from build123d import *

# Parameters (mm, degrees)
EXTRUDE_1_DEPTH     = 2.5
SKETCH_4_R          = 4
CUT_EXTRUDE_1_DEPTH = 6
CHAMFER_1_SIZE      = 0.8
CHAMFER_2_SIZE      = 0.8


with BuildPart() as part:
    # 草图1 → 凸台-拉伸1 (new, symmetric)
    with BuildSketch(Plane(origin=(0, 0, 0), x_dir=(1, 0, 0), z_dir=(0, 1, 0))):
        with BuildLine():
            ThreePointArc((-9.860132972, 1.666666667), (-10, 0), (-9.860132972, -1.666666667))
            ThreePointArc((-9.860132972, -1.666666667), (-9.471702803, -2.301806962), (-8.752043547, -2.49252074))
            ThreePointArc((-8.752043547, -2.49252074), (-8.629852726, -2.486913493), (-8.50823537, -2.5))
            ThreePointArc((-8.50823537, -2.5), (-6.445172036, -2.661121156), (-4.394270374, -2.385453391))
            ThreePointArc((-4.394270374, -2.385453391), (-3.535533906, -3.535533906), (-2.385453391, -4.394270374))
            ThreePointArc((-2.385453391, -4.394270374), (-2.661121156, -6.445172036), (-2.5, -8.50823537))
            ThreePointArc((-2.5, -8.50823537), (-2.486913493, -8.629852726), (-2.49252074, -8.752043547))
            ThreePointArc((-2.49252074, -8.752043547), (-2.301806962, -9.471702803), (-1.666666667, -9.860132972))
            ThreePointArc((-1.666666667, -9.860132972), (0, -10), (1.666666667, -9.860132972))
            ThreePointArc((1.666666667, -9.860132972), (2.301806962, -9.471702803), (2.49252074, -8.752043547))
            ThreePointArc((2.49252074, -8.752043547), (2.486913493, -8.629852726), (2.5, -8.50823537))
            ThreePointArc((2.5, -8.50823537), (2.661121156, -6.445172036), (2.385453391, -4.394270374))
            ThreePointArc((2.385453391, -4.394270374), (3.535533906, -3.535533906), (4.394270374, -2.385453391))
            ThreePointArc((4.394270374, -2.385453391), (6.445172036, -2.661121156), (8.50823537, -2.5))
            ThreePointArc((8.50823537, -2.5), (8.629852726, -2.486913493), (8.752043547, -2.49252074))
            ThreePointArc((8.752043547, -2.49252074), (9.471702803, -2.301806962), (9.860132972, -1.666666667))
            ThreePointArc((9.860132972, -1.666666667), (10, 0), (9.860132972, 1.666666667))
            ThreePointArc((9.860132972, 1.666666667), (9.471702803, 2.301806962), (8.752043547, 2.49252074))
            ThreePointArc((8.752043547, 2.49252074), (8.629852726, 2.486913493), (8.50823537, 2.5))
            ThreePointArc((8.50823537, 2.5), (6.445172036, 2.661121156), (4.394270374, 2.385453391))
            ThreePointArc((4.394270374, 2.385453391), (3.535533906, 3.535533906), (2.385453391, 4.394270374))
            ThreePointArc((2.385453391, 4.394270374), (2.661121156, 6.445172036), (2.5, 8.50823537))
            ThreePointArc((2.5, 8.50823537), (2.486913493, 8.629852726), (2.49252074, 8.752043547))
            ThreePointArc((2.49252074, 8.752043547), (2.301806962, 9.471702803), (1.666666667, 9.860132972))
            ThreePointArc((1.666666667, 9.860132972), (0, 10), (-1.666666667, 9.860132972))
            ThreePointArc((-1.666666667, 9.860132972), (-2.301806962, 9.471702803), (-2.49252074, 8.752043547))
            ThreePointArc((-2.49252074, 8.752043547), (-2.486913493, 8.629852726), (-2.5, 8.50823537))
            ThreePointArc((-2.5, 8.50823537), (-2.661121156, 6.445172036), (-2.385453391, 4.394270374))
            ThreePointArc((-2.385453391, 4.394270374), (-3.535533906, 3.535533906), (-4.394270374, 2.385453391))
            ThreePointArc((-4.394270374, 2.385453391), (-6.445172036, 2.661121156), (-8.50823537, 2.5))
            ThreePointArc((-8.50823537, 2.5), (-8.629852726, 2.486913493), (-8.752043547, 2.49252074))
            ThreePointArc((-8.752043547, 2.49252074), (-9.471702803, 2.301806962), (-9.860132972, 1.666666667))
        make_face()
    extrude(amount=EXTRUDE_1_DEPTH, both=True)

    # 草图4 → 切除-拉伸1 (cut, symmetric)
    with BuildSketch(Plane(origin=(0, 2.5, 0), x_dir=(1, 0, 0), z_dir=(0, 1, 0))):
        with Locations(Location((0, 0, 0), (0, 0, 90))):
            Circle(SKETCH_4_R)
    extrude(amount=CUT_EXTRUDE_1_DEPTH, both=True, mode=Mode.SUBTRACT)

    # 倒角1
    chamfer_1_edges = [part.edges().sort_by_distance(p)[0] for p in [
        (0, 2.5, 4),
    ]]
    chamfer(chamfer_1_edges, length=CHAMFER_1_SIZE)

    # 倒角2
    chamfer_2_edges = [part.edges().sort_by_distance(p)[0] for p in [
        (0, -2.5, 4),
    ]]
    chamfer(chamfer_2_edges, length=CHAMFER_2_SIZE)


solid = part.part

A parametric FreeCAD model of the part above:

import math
import FreeCAD as App
import Part
import Sketcher

V = App.Vector
Q = App.Units.Quantity


def edges_at(feature, points):
    """Names of the edges that pass closest to the given points."""
    edges = feature.Shape.Edges
    near = lambda p: min(range(len(edges)), key=lambda i: edges[i].distToShape(Part.Vertex(*p))[0])
    return sorted({f"Edge{near(p) + 1}" for p in points})

doc = App.newDocument("Part")
body = doc.addObject("PartDesign::Body", "Body")

sketch1 = body.newObject("Sketcher::SketchObject", "Sketch")
sketch1.AttachmentSupport = (doc.getObject("XZ_Plane"), [""])
sketch1.MapMode = "FlatFace"
sketch1.addGeometry(Part.ArcOfCircle(Part.Circle(V(0, 0, 0), V(0, 0, 1), 10), math.radians(170.41), math.radians(189.59)), False)
sketch1.addGeometry(Part.ArcOfCircle(Part.Circle(V(-8.87, 1.5, 0), V(0, 0, 1), 1), math.radians(83), math.radians(170)), False)
sketch1.addGeometry(Part.ArcOfCircle(Part.Circle(V(-8.65, 3.29, 0), V(0, 0, 1), 0.8), math.radians(-97.01), math.radians(-79.47)), False)
sketch1.addGeometry(Part.ArcOfCircle(Part.Circle(V(-6.72, -7.14, 0), V(0, 0, 1), 9.8), math.radians(76), math.radians(101)), False)
sketch1.addGeometry(Part.ArcOfCircle(Part.Circle(V(0, 0, 0), V(0, 0, 1), 5), math.radians(118), math.radians(152)), False)
sketch1.addGeometry(Part.ArcOfCircle(Part.Circle(V(7.14, 6.72, 0), V(0, 0, 1), 9.8), math.radians(169), math.radians(194)), False)
sketch1.addGeometry(Part.ArcOfCircle(Part.Circle(V(-3.29, 8.65, 0), V(0, 0, 1), 0.8), math.radians(-10.53), math.radians(7.01)), False)
sketch1.addGeometry(Part.ArcOfCircle(Part.Circle(V(-1.5, 8.87, 0), V(0, 0, 1), 1), math.radians(100), math.radians(187)), False)
sketch1.addGeometry(Part.ArcOfCircle(Part.Circle(V(0, 0, 0), V(0, 0, 1), 10), math.radians(80.41), math.radians(99.59)), False)
sketch1.addGeometry(Part.ArcOfCircle(Part.Circle(V(1.5, 8.87, 0), V(0, 0, 1), 1), math.radians(-7), math.radians(80)), False)
sketch1.addGeometry(Part.ArcOfCircle(Part.Circle(V(3.29, 8.65, 0), V(0, 0, 1), 0.8), math.radians(172.99), math.radians(190.53)), False)
sketch1.addGeometry(Part.ArcOfCircle(Part.Circle(V(-7.14, 6.72, 0), V(0, 0, 1), 9.8), math.radians(-14), math.radians(11)), False)
sketch1.addGeometry(Part.ArcOfCircle(Part.Circle(V(0, 0, 0), V(0, 0, 1), 5), math.radians(28), math.radians(62)), False)
sketch1.addGeometry(Part.ArcOfCircle(Part.Circle(V(6.72, -7.14, 0), V(0, 0, 1), 9.8), math.radians(79), math.radians(104)), False)
sketch1.addGeometry(Part.ArcOfCircle(Part.Circle(V(8.65, 3.29, 0), V(0, 0, 1), 0.8), math.radians(-100.53), math.radians(-82.99)), False)
sketch1.addGeometry(Part.ArcOfCircle(Part.Circle(V(8.87, 1.5, 0), V(0, 0, 1), 1), math.radians(10), math.radians(97)), False)
sketch1.addGeometry(Part.ArcOfCircle(Part.Circle(V(0, 0, 0), V(0, 0, 1), 10), math.radians(-9.59), math.radians(9.59)), False)
sketch1.addGeometry(Part.ArcOfCircle(Part.Circle(V(8.87, -1.5, 0), V(0, 0, 1), 1), math.radians(-97), math.radians(-10)), False)
sketch1.addGeometry(Part.ArcOfCircle(Part.Circle(V(8.65, -3.29, 0), V(0, 0, 1), 0.8), math.radians(82.99), math.radians(100.53)), False)
sketch1.addGeometry(Part.ArcOfCircle(Part.Circle(V(6.72, 7.14, 0), V(0, 0, 1), 9.8), math.radians(-104), math.radians(-79)), False)
sketch1.addGeometry(Part.ArcOfCircle(Part.Circle(V(0, 0, 0), V(0, 0, 1), 5), math.radians(-62), math.radians(-28)), False)
sketch1.addGeometry(Part.ArcOfCircle(Part.Circle(V(-7.14, -6.72, 0), V(0, 0, 1), 9.8), math.radians(-11), math.radians(14)), False)
sketch1.addGeometry(Part.ArcOfCircle(Part.Circle(V(3.29, -8.65, 0), V(0, 0, 1), 0.8), math.radians(169.47), math.radians(187.01)), False)
sketch1.addGeometry(Part.ArcOfCircle(Part.Circle(V(1.5, -8.87, 0), V(0, 0, 1), 1), math.radians(-80), math.radians(7)), False)
sketch1.addGeometry(Part.ArcOfCircle(Part.Circle(V(0, 0, 0), V(0, 0, 1), 10), math.radians(-99.59), math.radians(-80.41)), False)
sketch1.addGeometry(Part.ArcOfCircle(Part.Circle(V(-1.5, -8.87, 0), V(0, 0, 1), 1), math.radians(173), math.radians(260)), False)
sketch1.addGeometry(Part.ArcOfCircle(Part.Circle(V(-3.29, -8.65, 0), V(0, 0, 1), 0.8), math.radians(-7.01), math.radians(10.53)), False)
sketch1.addGeometry(Part.ArcOfCircle(Part.Circle(V(7.14, -6.72, 0), V(0, 0, 1), 9.8), math.radians(166), math.radians(191)), False)
sketch1.addGeometry(Part.ArcOfCircle(Part.Circle(V(0, 0, 0), V(0, 0, 1), 5), math.radians(-152), math.radians(-118)), False)
sketch1.addGeometry(Part.ArcOfCircle(Part.Circle(V(-6.72, 7.14, 0), V(0, 0, 1), 9.8), math.radians(-101), math.radians(-76)), False)
sketch1.addGeometry(Part.ArcOfCircle(Part.Circle(V(-8.65, -3.29, 0), V(0, 0, 1), 0.8), math.radians(79.47), math.radians(97.01)), False)
sketch1.addGeometry(Part.ArcOfCircle(Part.Circle(V(-8.87, -1.5, 0), V(0, 0, 1), 1), math.radians(-170), math.radians(-83)), False)
sketch1.addConstraint(Sketcher.Constraint("Tangent", 0, 1, 1, 2))
sketch1.addConstraint(Sketcher.Constraint("Tangent", 1, 1, 2, 1))
sketch1.addConstraint(Sketcher.Constraint("Tangent", 2, 2, 3, 2))
sketch1.addConstraint(Sketcher.Constraint("Coincident", 3, 1, 4, 2))
sketch1.addConstraint(Sketcher.Constraint("Coincident", 4, 1, 5, 2))
sketch1.addConstraint(Sketcher.Constraint("Tangent", 5, 1, 6, 1))
sketch1.addConstraint(Sketcher.Constraint("Tangent", 6, 2, 7, 2))
sketch1.addConstraint(Sketcher.Constraint("Tangent", 7, 1, 8, 2))
sketch1.addConstraint(Sketcher.Constraint("Tangent", 8, 1, 9, 2))
sketch1.addConstraint(Sketcher.Constraint("Tangent", 9, 1, 10, 1))
sketch1.addConstraint(Sketcher.Constraint("Tangent", 10, 2, 11, 2))
sketch1.addConstraint(Sketcher.Constraint("Coincident", 11, 1, 12, 2))
sketch1.addConstraint(Sketcher.Constraint("Coincident", 12, 1, 13, 2))
sketch1.addConstraint(Sketcher.Constraint("Tangent", 13, 1, 14, 1))
sketch1.addConstraint(Sketcher.Constraint("Tangent", 14, 2, 15, 2))
sketch1.addConstraint(Sketcher.Constraint("Tangent", 15, 1, 16, 2))
sketch1.addConstraint(Sketcher.Constraint("Tangent", 16, 1, 17, 2))
sketch1.addConstraint(Sketcher.Constraint("Tangent", 17, 1, 18, 1))
sketch1.addConstraint(Sketcher.Constraint("Tangent", 18, 2, 19, 2))
sketch1.addConstraint(Sketcher.Constraint("Coincident", 19, 1, 20, 2))
sketch1.addConstraint(Sketcher.Constraint("Coincident", 20, 1, 21, 2))
sketch1.addConstraint(Sketcher.Constraint("Tangent", 21, 1, 22, 1))
sketch1.addConstraint(Sketcher.Constraint("Tangent", 22, 2, 23, 2))
sketch1.addConstraint(Sketcher.Constraint("Tangent", 23, 1, 24, 2))
sketch1.addConstraint(Sketcher.Constraint("Tangent", 24, 1, 25, 2))
sketch1.addConstraint(Sketcher.Constraint("Tangent", 25, 1, 26, 1))
sketch1.addConstraint(Sketcher.Constraint("Tangent", 26, 2, 27, 2))
sketch1.addConstraint(Sketcher.Constraint("Coincident", 27, 1, 28, 2))
sketch1.addConstraint(Sketcher.Constraint("Coincident", 28, 1, 29, 2))
sketch1.addConstraint(Sketcher.Constraint("Tangent", 29, 1, 30, 1))
sketch1.addConstraint(Sketcher.Constraint("Tangent", 30, 2, 31, 2))
sketch1.addConstraint(Sketcher.Constraint("Tangent", 31, 1, 0, 2))
sketch1.addConstraint(Sketcher.Constraint("Coincident", 0, 3, -1, 1))
sketch1.addConstraint(Sketcher.Constraint("Coincident", 4, 3, -1, 1))
sketch1.addConstraint(Sketcher.Constraint("Coincident", 8, 3, -1, 1))
sketch1.addConstraint(Sketcher.Constraint("Coincident", 12, 3, -1, 1))
sketch1.addConstraint(Sketcher.Constraint("Coincident", 16, 3, -1, 1))
sketch1.addConstraint(Sketcher.Constraint("Coincident", 20, 3, -1, 1))
sketch1.addConstraint(Sketcher.Constraint("Coincident", 24, 3, -1, 1))
sketch1.addConstraint(Sketcher.Constraint("Coincident", 28, 3, -1, 1))
sketch1.addConstraint(Sketcher.Constraint("Equal", 3, 5))
sketch1.addConstraint(Sketcher.Constraint("Equal", 2, 6))
sketch1.addConstraint(Sketcher.Constraint("Equal", 1, 7))
sketch1.addConstraint(Sketcher.Constraint("Equal", 0, 8))
sketch1.addConstraint(Sketcher.Constraint("Equal", 7, 9))
sketch1.addConstraint(Sketcher.Constraint("Equal", 6, 10))
sketch1.addConstraint(Sketcher.Constraint("Equal", 5, 11))
sketch1.addConstraint(Sketcher.Constraint("Equal", 4, 12))
sketch1.addConstraint(Sketcher.Constraint("Equal", 11, 13))
sketch1.addConstraint(Sketcher.Constraint("Equal", 10, 14))
sketch1.addConstraint(Sketcher.Constraint("Equal", 9, 15))
sketch1.addConstraint(Sketcher.Constraint("Equal", 8, 16))
sketch1.addConstraint(Sketcher.Constraint("Equal", 15, 17))
sketch1.addConstraint(Sketcher.Constraint("Equal", 14, 18))
sketch1.addConstraint(Sketcher.Constraint("Equal", 13, 19))
sketch1.addConstraint(Sketcher.Constraint("Equal", 12, 20))
sketch1.addConstraint(Sketcher.Constraint("Equal", 19, 21))
sketch1.addConstraint(Sketcher.Constraint("Equal", 18, 22))
sketch1.addConstraint(Sketcher.Constraint("Equal", 17, 23))
sketch1.addConstraint(Sketcher.Constraint("Equal", 16, 24))
sketch1.addConstraint(Sketcher.Constraint("Equal", 23, 25))
sketch1.addConstraint(Sketcher.Constraint("Equal", 22, 26))
sketch1.addConstraint(Sketcher.Constraint("Equal", 21, 27))
sketch1.addConstraint(Sketcher.Constraint("Equal", 20, 28))
sketch1.addConstraint(Sketcher.Constraint("Equal", 27, 29))
sketch1.addConstraint(Sketcher.Constraint("Equal", 26, 30))
sketch1.addConstraint(Sketcher.Constraint("Equal", 25, 31))
sketch1.addConstraint(Sketcher.Constraint("Symmetric", 2, 3, 18, 3, -1, 1))
sketch1.addConstraint(Sketcher.Constraint("Symmetric", 5, 3, 21, 3, -1, 1))
sketch1.addConstraint(Sketcher.Constraint("Symmetric", 10, 3, 26, 3, -1, 1))
sketch1.addConstraint(Sketcher.Constraint("Symmetric", 13, 3, 29, 3, -1, 1))
sketch1.addConstraint(Sketcher.Constraint("Symmetric", 6, 3, 10, 3, -2))
sketch1.addConstraint(Sketcher.Constraint("Symmetric", 3, 3, 13, 3, -2))
sketch1.addConstraint(Sketcher.Constraint("Horizontal", 5, 3, 11, 3))
sketch1.addConstraint(Sketcher.Constraint("Horizontal", 2, 3, 14, 3))
sketch1.addConstraint(Sketcher.Constraint("Horizontal", 23, 3, 25, 3))
sketch1.addConstraint(Sketcher.Constraint("Horizontal", 21, 3, 27, 3))
sketch1.addConstraint(Sketcher.Constraint("Horizontal", 19, 3, 29, 3))
sketch1.addConstraint(Sketcher.Constraint("Horizontal", 18, 3, 30, 3))
sketch1.addConstraint(Sketcher.Constraint("Radius", 0, Q("10 mm")))
sketch1.addConstraint(Sketcher.Constraint("Radius", 1, Q("1 mm")))
sketch1.addConstraint(Sketcher.Constraint("Radius", 4, Q("5 mm")))
sketch1.addConstraint(Sketcher.Constraint("Radius", 2, Q("0.8 mm")))
sketch1.addConstraint(Sketcher.Constraint("Radius", 3, Q("9.8 mm")))
sketch1.addConstraint(Sketcher.Constraint("DistanceY", -1, 1, 1, 3, Q("1.5 mm")))
sketch1.addConstraint(Sketcher.Constraint("DistanceX", 7, 3, -1, 1, Q("1.5 mm")))
sketch1.addConstraint(Sketcher.Constraint("DistanceY", -1, 1, 2, 2, Q("2.5 mm")))
sketch1.addConstraint(Sketcher.Constraint("DistanceX", 5, 1, -1, 1, Q("2.5 mm")))
sketch1.addConstraint(Sketcher.Constraint("DistanceX", 3, 3, -1, 1, Q("6.717931 mm")))
sketch1.addConstraint(Sketcher.Constraint("DistanceY", -1, 1, 5, 3, Q("6.717931 mm")))
pad1 = body.newObject("PartDesign::Pad", "Pad")
pad1.Profile = sketch1
pad1.Length = 5
pad1.Midplane = True

sketch2 = body.newObject("Sketcher::SketchObject", "Sketch001")
sketch2.AttachmentSupport = (doc.getObject("XZ_Plane"), [""])
sketch2.MapMode = "FlatFace"
sketch2.AttachmentOffset = App.Placement(V(0, 0, -2.5), App.Rotation())
sketch2.addGeometry(Part.Circle(V(0, 0, 0), V(0, 0, 1), 4), False)
sketch2.addConstraint(Sketcher.Constraint("Coincident", 0, 3, -1, 1))
sketch2.addConstraint(Sketcher.Constraint("Diameter", 0, Q("8 mm")))
pocket1 = body.newObject("PartDesign::Pocket", "Pocket")
pocket1.Profile = sketch2
pocket1.Length = 12
pocket1.Midplane = True
doc.recompute()

chamfer = body.newObject("PartDesign::Chamfer", "Chamfer")
chamfer.Base = (pocket1, edges_at(pocket1, [(0, 2.5, 4)]))
chamfer.Size = 0.8
doc.recompute()

chamfer2 = body.newObject("PartDesign::Chamfer", "Chamfer001")
chamfer2.Base = (chamfer, edges_at(chamfer, [(0, -2.5, 4)]))
chamfer2.Size = 0.8

doc.recompute()
